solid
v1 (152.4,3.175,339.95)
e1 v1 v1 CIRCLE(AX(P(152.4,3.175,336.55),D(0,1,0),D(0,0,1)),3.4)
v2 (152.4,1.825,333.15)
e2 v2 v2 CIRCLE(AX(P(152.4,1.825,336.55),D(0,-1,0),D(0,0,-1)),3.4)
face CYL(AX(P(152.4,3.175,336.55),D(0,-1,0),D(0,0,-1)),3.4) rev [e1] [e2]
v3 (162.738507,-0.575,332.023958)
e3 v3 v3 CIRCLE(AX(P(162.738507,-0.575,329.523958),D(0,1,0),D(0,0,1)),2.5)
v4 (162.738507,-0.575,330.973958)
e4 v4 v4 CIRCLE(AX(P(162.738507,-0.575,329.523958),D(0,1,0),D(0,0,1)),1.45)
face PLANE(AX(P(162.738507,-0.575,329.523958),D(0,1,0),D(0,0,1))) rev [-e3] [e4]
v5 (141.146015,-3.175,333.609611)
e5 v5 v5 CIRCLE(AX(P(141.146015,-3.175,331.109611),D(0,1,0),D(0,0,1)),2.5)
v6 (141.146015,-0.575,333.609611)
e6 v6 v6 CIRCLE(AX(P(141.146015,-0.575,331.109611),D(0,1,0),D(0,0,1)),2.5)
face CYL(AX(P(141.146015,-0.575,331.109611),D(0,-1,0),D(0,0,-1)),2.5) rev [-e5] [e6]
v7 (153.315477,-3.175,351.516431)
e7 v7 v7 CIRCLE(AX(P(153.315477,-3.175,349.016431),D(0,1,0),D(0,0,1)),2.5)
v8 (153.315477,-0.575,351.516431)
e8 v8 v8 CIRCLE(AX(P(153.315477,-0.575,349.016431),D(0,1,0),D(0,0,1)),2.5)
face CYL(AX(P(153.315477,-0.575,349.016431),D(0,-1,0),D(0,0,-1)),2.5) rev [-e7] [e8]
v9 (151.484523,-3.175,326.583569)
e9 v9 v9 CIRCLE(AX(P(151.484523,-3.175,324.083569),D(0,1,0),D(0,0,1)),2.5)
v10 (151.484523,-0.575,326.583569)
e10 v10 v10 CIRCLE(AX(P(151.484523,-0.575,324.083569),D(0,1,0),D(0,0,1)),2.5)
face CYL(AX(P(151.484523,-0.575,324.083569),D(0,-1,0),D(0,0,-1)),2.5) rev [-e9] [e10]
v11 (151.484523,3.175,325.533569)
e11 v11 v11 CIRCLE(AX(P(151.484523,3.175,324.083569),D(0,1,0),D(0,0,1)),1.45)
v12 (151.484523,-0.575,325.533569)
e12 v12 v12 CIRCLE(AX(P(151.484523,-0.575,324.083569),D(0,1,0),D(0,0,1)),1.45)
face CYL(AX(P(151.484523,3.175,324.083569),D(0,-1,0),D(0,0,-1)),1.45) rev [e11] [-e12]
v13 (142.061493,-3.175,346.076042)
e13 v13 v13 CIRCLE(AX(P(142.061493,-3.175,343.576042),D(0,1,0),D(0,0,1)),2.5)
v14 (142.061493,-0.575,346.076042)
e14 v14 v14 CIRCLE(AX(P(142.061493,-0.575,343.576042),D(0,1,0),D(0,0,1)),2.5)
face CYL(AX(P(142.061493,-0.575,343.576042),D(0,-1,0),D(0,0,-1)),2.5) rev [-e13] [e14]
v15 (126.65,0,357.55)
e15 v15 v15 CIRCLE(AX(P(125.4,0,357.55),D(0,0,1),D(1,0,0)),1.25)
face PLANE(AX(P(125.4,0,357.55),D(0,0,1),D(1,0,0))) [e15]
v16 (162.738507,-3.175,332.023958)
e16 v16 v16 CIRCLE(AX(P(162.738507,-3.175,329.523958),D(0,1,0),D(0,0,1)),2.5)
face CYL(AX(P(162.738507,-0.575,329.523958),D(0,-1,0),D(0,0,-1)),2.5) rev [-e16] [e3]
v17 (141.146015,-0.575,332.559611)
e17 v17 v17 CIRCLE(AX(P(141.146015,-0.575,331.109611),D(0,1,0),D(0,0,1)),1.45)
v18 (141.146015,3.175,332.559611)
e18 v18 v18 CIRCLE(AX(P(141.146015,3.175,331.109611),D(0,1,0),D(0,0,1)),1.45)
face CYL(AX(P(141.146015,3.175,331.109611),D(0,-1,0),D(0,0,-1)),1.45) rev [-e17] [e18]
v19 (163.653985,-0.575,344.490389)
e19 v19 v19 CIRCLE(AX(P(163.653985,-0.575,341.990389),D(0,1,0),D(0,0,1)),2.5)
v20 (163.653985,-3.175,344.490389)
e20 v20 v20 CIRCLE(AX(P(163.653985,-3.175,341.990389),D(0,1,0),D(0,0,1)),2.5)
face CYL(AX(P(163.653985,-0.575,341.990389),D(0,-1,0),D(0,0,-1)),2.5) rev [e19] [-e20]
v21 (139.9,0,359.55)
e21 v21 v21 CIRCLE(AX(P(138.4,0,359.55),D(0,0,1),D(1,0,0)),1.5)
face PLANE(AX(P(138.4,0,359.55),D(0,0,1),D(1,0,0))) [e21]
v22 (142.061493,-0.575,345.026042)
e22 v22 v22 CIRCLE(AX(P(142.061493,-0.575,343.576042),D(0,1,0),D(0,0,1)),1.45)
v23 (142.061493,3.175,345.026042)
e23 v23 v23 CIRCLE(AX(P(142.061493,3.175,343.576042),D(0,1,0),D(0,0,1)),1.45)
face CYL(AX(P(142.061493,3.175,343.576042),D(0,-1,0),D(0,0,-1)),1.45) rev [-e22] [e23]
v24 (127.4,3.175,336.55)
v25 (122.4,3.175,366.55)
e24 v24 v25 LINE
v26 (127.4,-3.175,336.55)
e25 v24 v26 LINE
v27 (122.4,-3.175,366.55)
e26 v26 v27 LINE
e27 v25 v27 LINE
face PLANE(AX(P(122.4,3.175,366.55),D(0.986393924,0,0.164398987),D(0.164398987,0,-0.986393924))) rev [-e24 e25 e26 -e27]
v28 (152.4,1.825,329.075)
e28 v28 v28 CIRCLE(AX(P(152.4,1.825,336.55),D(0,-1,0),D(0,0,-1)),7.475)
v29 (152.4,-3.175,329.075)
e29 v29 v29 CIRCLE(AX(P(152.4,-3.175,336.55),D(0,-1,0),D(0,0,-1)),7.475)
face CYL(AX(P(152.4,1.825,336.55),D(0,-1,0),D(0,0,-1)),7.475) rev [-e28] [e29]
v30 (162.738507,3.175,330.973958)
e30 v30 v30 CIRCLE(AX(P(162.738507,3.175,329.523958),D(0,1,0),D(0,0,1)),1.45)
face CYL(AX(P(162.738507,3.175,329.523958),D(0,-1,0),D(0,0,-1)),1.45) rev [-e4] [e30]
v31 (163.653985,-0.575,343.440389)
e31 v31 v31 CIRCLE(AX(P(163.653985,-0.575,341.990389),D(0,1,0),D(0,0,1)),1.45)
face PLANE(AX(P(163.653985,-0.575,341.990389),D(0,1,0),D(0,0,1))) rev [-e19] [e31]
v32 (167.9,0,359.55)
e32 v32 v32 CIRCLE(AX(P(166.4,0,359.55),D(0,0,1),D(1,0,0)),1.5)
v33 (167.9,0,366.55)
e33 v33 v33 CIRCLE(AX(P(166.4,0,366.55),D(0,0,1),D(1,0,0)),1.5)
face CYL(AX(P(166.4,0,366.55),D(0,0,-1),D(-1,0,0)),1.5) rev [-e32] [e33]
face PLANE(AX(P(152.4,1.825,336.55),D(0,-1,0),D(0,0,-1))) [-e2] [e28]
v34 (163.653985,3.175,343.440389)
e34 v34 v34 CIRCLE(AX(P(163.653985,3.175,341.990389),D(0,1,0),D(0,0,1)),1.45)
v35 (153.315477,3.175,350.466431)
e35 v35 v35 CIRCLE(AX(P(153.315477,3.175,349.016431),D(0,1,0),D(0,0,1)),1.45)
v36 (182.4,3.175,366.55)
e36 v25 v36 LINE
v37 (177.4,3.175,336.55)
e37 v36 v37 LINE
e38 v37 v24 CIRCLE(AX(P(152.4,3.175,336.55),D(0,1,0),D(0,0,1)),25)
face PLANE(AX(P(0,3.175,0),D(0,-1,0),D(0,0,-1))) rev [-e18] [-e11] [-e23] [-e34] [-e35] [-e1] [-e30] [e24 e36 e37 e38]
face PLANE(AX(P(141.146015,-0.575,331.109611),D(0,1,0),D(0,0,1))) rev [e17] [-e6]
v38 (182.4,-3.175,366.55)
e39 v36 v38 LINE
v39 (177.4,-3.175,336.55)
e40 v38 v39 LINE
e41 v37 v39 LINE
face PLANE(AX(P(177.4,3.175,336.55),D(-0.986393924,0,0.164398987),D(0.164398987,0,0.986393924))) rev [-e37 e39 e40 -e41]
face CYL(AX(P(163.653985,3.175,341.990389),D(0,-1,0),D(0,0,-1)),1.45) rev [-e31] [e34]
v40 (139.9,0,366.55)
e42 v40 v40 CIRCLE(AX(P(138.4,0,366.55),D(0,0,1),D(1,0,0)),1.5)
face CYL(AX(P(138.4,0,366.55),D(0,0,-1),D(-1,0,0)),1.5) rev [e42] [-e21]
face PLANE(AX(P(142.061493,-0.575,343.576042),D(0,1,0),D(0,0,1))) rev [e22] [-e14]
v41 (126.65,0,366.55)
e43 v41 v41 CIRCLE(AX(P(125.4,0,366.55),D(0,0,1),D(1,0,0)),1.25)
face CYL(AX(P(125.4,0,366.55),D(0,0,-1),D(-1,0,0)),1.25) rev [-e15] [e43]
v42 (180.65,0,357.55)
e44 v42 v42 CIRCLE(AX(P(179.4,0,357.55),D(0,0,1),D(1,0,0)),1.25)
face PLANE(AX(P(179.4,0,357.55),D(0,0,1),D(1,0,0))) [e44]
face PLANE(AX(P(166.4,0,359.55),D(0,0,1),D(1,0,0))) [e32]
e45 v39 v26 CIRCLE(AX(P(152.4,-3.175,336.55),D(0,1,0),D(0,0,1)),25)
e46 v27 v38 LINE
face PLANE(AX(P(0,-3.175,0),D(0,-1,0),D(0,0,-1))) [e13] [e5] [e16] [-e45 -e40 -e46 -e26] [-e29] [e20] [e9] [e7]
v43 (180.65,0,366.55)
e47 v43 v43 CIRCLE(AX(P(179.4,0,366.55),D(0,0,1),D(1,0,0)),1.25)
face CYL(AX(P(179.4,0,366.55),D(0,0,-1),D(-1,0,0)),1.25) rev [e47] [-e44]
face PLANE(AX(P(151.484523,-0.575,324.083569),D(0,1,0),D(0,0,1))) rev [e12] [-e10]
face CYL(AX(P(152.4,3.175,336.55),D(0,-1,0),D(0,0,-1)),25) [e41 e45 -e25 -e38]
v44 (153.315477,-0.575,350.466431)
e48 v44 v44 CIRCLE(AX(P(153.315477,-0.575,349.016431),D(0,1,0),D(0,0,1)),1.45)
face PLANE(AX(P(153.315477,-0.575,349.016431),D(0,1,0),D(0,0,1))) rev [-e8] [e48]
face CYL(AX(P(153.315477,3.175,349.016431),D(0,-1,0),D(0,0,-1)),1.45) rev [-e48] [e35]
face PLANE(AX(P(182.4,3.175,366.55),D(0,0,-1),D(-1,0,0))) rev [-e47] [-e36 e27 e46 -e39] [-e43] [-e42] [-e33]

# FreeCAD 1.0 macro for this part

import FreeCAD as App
import Part
import Sketcher


def add_polygon(sketch, points):
    """Adds a closed chain of lines whose ends are joined by coincident constraints."""
    first, n = sketch.GeometryCount, len(points)
    for a, b in zip(points, points[1:] + points[:1]):
        sketch.addGeometry(Part.LineSegment(App.Vector(*a, 0), App.Vector(*b, 0)), False)
    for i in range(n):
        sketch.addConstraint(Sketcher.Constraint("Coincident", first + i, 2, first + (i + 1) % n, 1))

doc = App.newDocument("Part")
body = doc.addObject("PartDesign::Body", "Body")

# Sketch on XZ plane
sketch1 = doc.addObject("Sketcher::SketchObject", "Sketch")
body.addObject(sketch1)
sketch1.AttachmentSupport = (doc.XZ_Plane, [""])
sketch1.MapMode = "FlatFace"
sketch1.AttachmentOffset = App.Placement(App.Vector(0, 0, 3.175), App.Rotation())
add_polygon(sketch1, [(177, 337), (127, 337), (122, 367), (182, 367)])  # lines 0-3
sketch1.addConstraint([
    Sketcher.Constraint("Horizontal", 0),
    Sketcher.Constraint("Horizontal", 2),
    Sketcher.Constraint("Equal", 1, 3),
    Sketcher.Constraint("DistanceX", 0, 2, 0, 1, 50.0),
    Sketcher.Constraint("DistanceX", 2, 1, 2, 2, 60.0),
    Sketcher.Constraint("DistanceY", 0, 2, 1, 2, 30.0),
    Sketcher.Constraint("DistanceX", -1, 1, 0, 2, 127.4),
    Sketcher.Constraint("DistanceY", -1, 1, 0, 2, 336.55),
])
pad1 = doc.addObject("PartDesign::Pad", "Pad")
body.addObject(pad1)
pad1.Profile = sketch1
pad1.Length = 6.35
pad1.Reversed = True

# Sketch on XZ plane
sketch2 = doc.addObject("Sketcher::SketchObject", "Sketch001")
body.addObject(sketch2)
sketch2.AttachmentSupport = (doc.XZ_Plane, [""])
sketch2.MapMode = "FlatFace"
sketch2.AttachmentOffset = App.Placement(App.Vector(0, 0, 3.175), App.Rotation())
sketch2.addGeometry(Part.Circle(App.Vector(152, 337, 0), App.Vector(0, 0, 1), 25), False)
sketch2.addConstraint([
    Sketcher.Constraint("Diameter", 0, 50.0),
    Sketcher.Constraint("DistanceX", -1, 1, 0, 3, 152.4),
    Sketcher.Constraint("DistanceY", -1, 1, 0, 3, 336.55),
])
pad2 = doc.addObject("PartDesign::Pad", "Pad001")
body.addObject(pad2)
pad2.Profile = sketch2
pad2.Length = 6.35
pad2.Reversed = True

# Sketch on XZ plane
sketch3 = doc.addObject("Sketcher::SketchObject", "Sketch002")
body.addObject(sketch3)
sketch3.AttachmentSupport = (doc.XZ_Plane, [""])
sketch3.MapMode = "FlatFace"
sketch3.AttachmentOffset = App.Placement(App.Vector(0, 0, 3.175), App.Rotation())
sketch3.addGeometry([
    Part.Circle(App.Vector(163.7, 342, 0), App.Vector(0, 0, 1), 1.4),  # 0
    Part.Circle(App.Vector(153.3, 349, 0), App.Vector(0, 0, 1), 1.4),  # 1
    Part.Circle(App.Vector(142.1, 343.6, 0), App.Vector(0, 0, 1), 1.4),  # 2
    Part.Circle(App.Vector(141.1, 331.1, 0), App.Vector(0, 0, 1), 1.4),  # 3
    Part.Circle(App.Vector(151.5, 324.1, 0), App.Vector(0, 0, 1), 1.4),  # 4
    Part.Circle(App.Vector(162.7, 329.5, 0), App.Vector(0, 0, 1), 1.4),  # 5
    Part.Circle(App.Vector(152.4, 336.6, 0), App.Vector(0, 0, 1), 3.4),  # 6
], False)
sketch3.addConstraint([
    Sketcher.Constraint("Equal", 0, 1),
    Sketcher.Constraint("Equal", 1, 2),
    Sketcher.Constraint("Equal", 2, 3),
    Sketcher.Constraint("Equal", 3, 4),
    Sketcher.Constraint("Equal", 4, 5),
    Sketcher.Constraint("Diameter", 0, 2.9),
    Sketcher.Constraint("Diameter", 6, 6.8),
    Sketcher.Constraint("DistanceX", -1, 1, 6, 3, 152.4),
    Sketcher.Constraint("DistanceY", -1, 1, 6, 3, 336.55),
    Sketcher.Constraint("DistanceY", -1, 1, 0, 3, 341.990389),
    Sketcher.Constraint("DistanceY", -1, 1, 1, 3, 349.016431),
    Sketcher.Constraint("DistanceY", -1, 1, 3, 3, 331.109611),
    Sketcher.Constraint("DistanceY", -1, 1, 4, 3, 324.083569),
    Sketcher.Constraint("DistanceY", 2, 3, 1, 3, 5.440389),
    Sketcher.Constraint("DistanceX", 2, 3, 0, 3, 21.592492),
    Sketcher.Constraint("DistanceX", 3, 3, 0, 3, 22.507969),
    Sketcher.Constraint("DistanceX", 2, 3, 4, 3, 9.42303),
    Sketcher.Constraint("DistanceY", 4, 3, 5, 3, 5.440389),
    Sketcher.Constraint("DistanceX", 1, 3, 5, 3, 9.42303),
    Sketcher.Constraint("DistanceX", 3, 3, 5, 3, 21.592492),
    Sketcher.Constraint("DistanceX", -1, 1, 0, 3, 163.653985),
])
pocket1 = doc.addObject("PartDesign::Pocket", "Pocket")
body.addObject(pocket1)
pocket1.Profile = sketch3
pocket1.Length = 6.35

# Sketch on XZ plane
sketch4 = doc.addObject("Sketcher::SketchObject", "Sketch003")
body.addObject(sketch4)
sketch4.AttachmentSupport = (doc.XZ_Plane, [""])
sketch4.MapMode = "FlatFace"
sketch4.AttachmentOffset = App.Placement(App.Vector(0, 0, 3.175), App.Rotation())
sketch4.addGeometry([
    Part.Circle(App.Vector(163.7, 342, 0), App.Vector(0, 0, 1), 2.5),  # 0
    Part.Circle(App.Vector(153.3, 349, 0), App.Vector(0, 0, 1), 2.5),  # 1
    Part.Circle(App.Vector(142.1, 343.6, 0), App.Vector(0, 0, 1), 2.5),  # 2
    Part.Circle(App.Vector(141.1, 331.1, 0), App.Vector(0, 0, 1), 2.5),  # 3
    Part.Circle(App.Vector(151.5, 324.1, 0), App.Vector(0, 0, 1), 2.5),  # 4
    Part.Circle(App.Vector(162.7, 329.5, 0), App.Vector(0, 0, 1), 2.5),  # 5
], False)
sketch4.addConstraint([
    Sketcher.Constraint("Equal", 0, 1),
    Sketcher.Constraint("Equal", 1, 2),
    Sketcher.Constraint("Equal", 2, 3),
    Sketcher.Constraint("Equal", 3, 4),
    Sketcher.Constraint("Equal", 4, 5),
    Sketcher.Constraint("Diameter", 0, 5.0),
    Sketcher.Constraint("DistanceY", -1, 1, 0, 3, 341.990389),
    Sketcher.Constraint("DistanceY", -1, 1, 1, 3, 349.016431),
    Sketcher.Constraint("DistanceY", -1, 1, 3, 3, 331.109611),
    Sketcher.Constraint("DistanceY", -1, 1, 4, 3, 324.083569),
    Sketcher.Constraint("DistanceY", 2, 3, 1, 3, 5.440389),
    Sketcher.Constraint("DistanceX", 2, 3, 0, 3, 21.592492),
    Sketcher.Constraint("DistanceX", 3, 3, 0, 3, 22.507969),
    Sketcher.Constraint("DistanceX", 2, 3, 4, 3, 9.42303),
    Sketcher.Constraint("DistanceY", 4, 3, 5, 3, 5.440389),
    Sketcher.Constraint("DistanceX", 1, 3, 5, 3, 9.42303),
    Sketcher.Constraint("DistanceX", 3, 3, 5, 3, 21.592492),
    Sketcher.Constraint("DistanceX", -1, 1, 0, 3, 163.653985),
])
pocket2 = doc.addObject("PartDesign::Pocket", "Pocket001")
body.addObject(pocket2)
pocket2.Profile = sketch4
pocket2.Length = 2.6

# Sketch on XY plane
sketch5 = doc.addObject("Sketcher::SketchObject", "Sketch004")
body.addObject(sketch5)
sketch5.AttachmentSupport = (doc.XY_Plane, [""])
sketch5.MapMode = "FlatFace"
sketch5.AttachmentOffset = App.Placement(App.Vector(0, 0, 357.55), App.Rotation())
sketch5.addGeometry([
    Part.Circle(App.Vector(125.4, 0, 0), App.Vector(0, 0, 1), 1.2),
    Part.Circle(App.Vector(179.4, 0, 0), App.Vector(0, 0, 1), 1.2),
], False)
sketch5.addConstraint([
    Sketcher.Constraint("Equal", 0, 1),
    Sketcher.Constraint("PointOnObject", 0, 3, -1),
    Sketcher.Constraint("PointOnObject", 1, 3, -1),
    Sketcher.Constraint("Diameter", 0, 2.5),
    Sketcher.Constraint("DistanceX", 0, 3, 1, 3, 54.0),
    Sketcher.Constraint("DistanceX", -1, 1, 0, 3, 125.4),
])
pocket3 = doc.addObject("PartDesign::Pocket", "Pocket002")
body.addObject(pocket3)
pocket3.Profile = sketch5
pocket3.Length = 9
pocket3.Reversed = True

# Sketch on XY plane
sketch6 = doc.addObject("Sketcher::SketchObject", "Sketch005")
body.addObject(sketch6)
sketch6.AttachmentSupport = (doc.XY_Plane, [""])
sketch6.MapMode = "FlatFace"
sketch6.AttachmentOffset = App.Placement(App.Vector(0, 0, 359.55), App.Rotation())
sketch6.addGeometry([
    Part.Circle(App.Vector(138.4, 0, 0), App.Vector(0, 0, 1), 1.5),
    Part.Circle(App.Vector(166.4, 0, 0), App.Vector(0, 0, 1), 1.5),
], False)
sketch6.addConstraint([
    Sketcher.Constraint("Equal", 0, 1),
    Sketcher.Constraint("PointOnObject", 0, 3, -1),
    Sketcher.Constraint("PointOnObject", 1, 3, -1),
    Sketcher.Constraint("Diameter", 0, 3.0),
    Sketcher.Constraint("DistanceX", 0, 3, 1, 3, 28.0),
    Sketcher.Constraint("DistanceX", -1, 1, 0, 3, 138.4),
])
pocket4 = doc.addObject("PartDesign::Pocket", "Pocket003")
body.addObject(pocket4)
pocket4.Profile = sketch6
pocket4.Length = 7
pocket4.Reversed = True

# Sketch on XZ plane
sketch7 = doc.addObject("Sketcher::SketchObject", "Sketch006")
body.addObject(sketch7)
sketch7.AttachmentSupport = (doc.XZ_Plane, [""])
sketch7.MapMode = "FlatFace"
sketch7.AttachmentOffset = App.Placement(App.Vector(0, 0, 3.175), App.Rotation())
sketch7.addGeometry(Part.Circle(App.Vector(152, 337, 0), App.Vector(0, 0, 1), 7), False)
sketch7.addConstraint([
    Sketcher.Constraint("Diameter", 0, 14.95),
    Sketcher.Constraint("DistanceX", -1, 1, 0, 3, 152.4),
    Sketcher.Constraint("DistanceY", -1, 1, 0, 3, 336.55),
])
pocket5 = doc.addObject("PartDesign::Pocket", "Pocket004")
body.addObject(pocket5)
pocket5.Profile = sketch7
pocket5.Length = 5

doc.recompute()
